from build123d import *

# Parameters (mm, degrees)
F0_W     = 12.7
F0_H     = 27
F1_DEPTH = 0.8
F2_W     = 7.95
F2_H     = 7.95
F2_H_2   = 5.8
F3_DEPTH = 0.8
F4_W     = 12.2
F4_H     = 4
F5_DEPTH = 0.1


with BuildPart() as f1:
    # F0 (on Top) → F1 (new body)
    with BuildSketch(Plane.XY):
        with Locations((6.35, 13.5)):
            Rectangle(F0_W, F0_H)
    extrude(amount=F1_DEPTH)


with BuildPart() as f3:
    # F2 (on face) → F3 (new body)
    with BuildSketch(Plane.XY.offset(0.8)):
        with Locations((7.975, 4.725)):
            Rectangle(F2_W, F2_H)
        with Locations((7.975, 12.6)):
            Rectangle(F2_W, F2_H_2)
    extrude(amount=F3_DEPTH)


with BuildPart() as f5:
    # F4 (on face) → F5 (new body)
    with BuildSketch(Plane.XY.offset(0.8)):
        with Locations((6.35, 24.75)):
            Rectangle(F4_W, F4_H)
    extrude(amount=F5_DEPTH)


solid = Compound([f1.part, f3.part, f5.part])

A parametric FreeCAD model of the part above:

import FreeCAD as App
import Part
import Sketcher
from FreeCAD import Vector
Q = App.Units.Quantity

doc = App.newDocument("Part")
body = doc.addObject("PartDesign::Body", "Body")

# Sketch on XY plane
sketch1 = doc.addObject("Sketcher::SketchObject", "Sketch")
body.addObject(sketch1)
sketch1.AttachmentSupport = (doc.XY_Plane, [""])
sketch1.MapMode = "FlatFace"
sketch1.addGeometry(Part.LineSegment(Vector(0, 27, 0), Vector(0, 0, 0)), False)
sketch1.addGeometry(Part.LineSegment(Vector(0, 0, 0), Vector(13, 0, 0)), False)
sketch1.addGeometry(Part.LineSegment(Vector(13, 0, 0), Vector(13, 27, 0)), False)
sketch1.addGeometry(Part.LineSegment(Vector(13, 27, 0), Vector(0, 27, 0)), False)
sketch1.addConstraint(Sketcher.Constraint("Coincident", 0, 2, 1, 1))
sketch1.addConstraint(Sketcher.Constraint("Coincident", 1, 2, 2, 1))
sketch1.addConstraint(Sketcher.Constraint("Coincident", 2, 2, 3, 1))
sketch1.addConstraint(Sketcher.Constraint("Coincident", 3, 2, 0, 1))
sketch1.addConstraint(Sketcher.Constraint("Vertical", 0))
sketch1.addConstraint(Sketcher.Constraint("Horizontal", 1))
sketch1.addConstraint(Sketcher.Constraint("Vertical", 2))
sketch1.addConstraint(Sketcher.Constraint("Horizontal", 3))
sketch1.addConstraint(Sketcher.Constraint("Coincident", 0, 2, -1, 1))
sketch1.addConstraint(Sketcher.Constraint("DistanceY", 0, 2, 0, 1, Q("27 mm")))
sketch1.addConstraint(Sketcher.Constraint("DistanceX", 1, 1, 1, 2, Q("12.7 mm")))
pad1 = doc.addObject("PartDesign::Pad", "Pad")
body.addObject(pad1)
pad1.Profile = sketch1
pad1.Length = 0.8
body2 = doc.addObject("PartDesign::Body", "Body001")
body2.AllowCompound = True

# Sketch on XY plane
sketch2 = doc.addObject("Sketcher::SketchObject", "Sketch001")
body2.addObject(sketch2)
sketch2.AttachmentSupport = (doc.getObject("XY_Plane001"), [""])
sketch2.MapMode = "FlatFace"
sketch2.AttachmentOffset = App.Placement(Vector(0, 0, 0.8), App.Rotation())
sketch2.addGeometry(Part.LineSegment(Vector(4, 9, 0), Vector(4, 1, 0)), False)
sketch2.addGeometry(Part.LineSegment(Vector(4, 1, 0), Vector(12, 1, 0)), False)
sketch2.addGeometry(Part.LineSegment(Vector(12, 1, 0), Vector(12, 9, 0)), False)
sketch2.addGeometry(Part.LineSegment(Vector(12, 9, 0), Vector(4, 9, 0)), False)
sketch2.addGeometry(Part.LineSegment(Vector(4, 16, 0), Vector(4, 10, 0)), False)
sketch2.addGeometry(Part.LineSegment(Vector(4, 10, 0), Vector(12, 10, 0)), False)
sketch2.addGeometry(Part.LineSegment(Vector(12, 10, 0), Vector(12, 16, 0)), False)
sketch2.addGeometry(Part.LineSegment(Vector(12, 16, 0), Vector(4, 16, 0)), False)
sketch2.addConstraint(Sketcher.Constraint("Coincident", 0, 2, 1, 1))
sketch2.addConstraint(Sketcher.Constraint("Coincident", 1, 2, 2, 1))
sketch2.addConstraint(Sketcher.Constraint("Coincident", 2, 2, 3, 1))
sketch2.addConstraint(Sketcher.Constraint("Coincident", 3, 2, 0, 1))
sketch2.addConstraint(Sketcher.Constraint("Coincident", 4, 2, 5, 1))
sketch2.addConstraint(Sketcher.Constraint("Coincident", 5, 2, 6, 1))
sketch2.addConstraint(Sketcher.Constraint("Coincident", 6, 2, 7, 1))
sketch2.addConstraint(Sketcher.Constraint("Coincident", 7, 2, 4, 1))
sketch2.addConstraint(Sketcher.Constraint("Vertical", 0))
sketch2.addConstraint(Sketcher.Constraint("Horizontal", 1))
sketch2.addConstraint(Sketcher.Constraint("Vertical", 2))
sketch2.addConstraint(Sketcher.Constraint("Horizontal", 3))
sketch2.addConstraint(Sketcher.Constraint("Vertical", 4))
sketch2.addConstraint(Sketcher.Constraint("Horizontal", 5))
sketch2.addConstraint(Sketcher.Constraint("Vertical", 6))
sketch2.addConstraint(Sketcher.Constraint("Horizontal", 7))
sketch2.addConstraint(Sketcher.Constraint("Vertical", 3, 2, 4, 2))
sketch2.addConstraint(Sketcher.Constraint("Vertical", 2, 2, 5, 2))
sketch2.addConstraint(Sketcher.Constraint("Equal", 7, 0))
sketch2.addConstraint(Sketcher.Constraint("DistanceY", 4, 2, 4, 1, Q("5.8 mm")))
sketch2.addConstraint(Sketcher.Constraint("DistanceX", -1, 1, 0, 2, Q("4 mm")))
sketch2.addConstraint(Sketcher.Constraint("DistanceY", 3, 2, 4, 2, Q("1 mm")))
sketch2.addConstraint(Sketcher.Constraint("DistanceX", 1, 1, 1, 2, Q("7.95 mm")))
sketch2.addConstraint(Sketcher.Constraint("DistanceY", -1, 1, 2, 2, Q("8.7 mm")))
pad2 = doc.addObject("PartDesign::Pad", "Pad001")
body2.addObject(pad2)
pad2.Profile = sketch2
pad2.Length = 0.8
body3 = doc.addObject("PartDesign::Body", "Body002")

# Sketch on XY plane
sketch3 = doc.addObject("Sketcher::SketchObject", "Sketch002")
body3.addObject(sketch3)
sketch3.AttachmentSupport = (doc.getObject("XY_Plane002"), [""])
sketch3.MapMode = "FlatFace"
sketch3.AttachmentOffset = App.Placement(Vector(0, 0, 0.8), App.Rotation())
sketch3.addGeometry(Part.LineSegment(Vector(0.2, 26.8, 0), Vector(0.2, 22.8, 0)), False)
sketch3.addGeometry(Part.LineSegment(Vector(0.2, 22.8, 0), Vector(12.4, 22.8, 0)), False)
sketch3.addGeometry(Part.LineSegment(Vector(12.4, 22.8, 0), Vector(12.4, 26.8, 0)), False)
sketch3.addGeometry(Part.LineSegment(Vector(12.4, 26.8, 0), Vector(0.2, 26.8, 0)), False)
sketch3.addConstraint(Sketcher.Constraint("Coincident", 0, 2, 1, 1))
sketch3.addConstraint(Sketcher.Constraint("Coincident", 1, 2, 2, 1))
sketch3.addConstraint(Sketcher.Constraint("Coincident", 2, 2, 3, 1))
sketch3.addConstraint(Sketcher.Constraint("Coincident", 3, 2, 0, 1))
sketch3.addConstraint(Sketcher.Constraint("Vertical", 0))
sketch3.addConstraint(Sketcher.Constraint("Horizontal", 1))
sketch3.addConstraint(Sketcher.Constraint("Vertical", 2))
sketch3.addConstraint(Sketcher.Constraint("Horizontal", 3))
sketch3.addConstraint(Sketcher.Constraint("DistanceY", 0, 2, 0, 1, Q("4 mm")))
sketch3.addConstraint(Sketcher.Constraint("DistanceX", 1, 1, 1, 2, Q("12.2 mm")))
sketch3.addConstraint(Sketcher.Constraint("DistanceX", -1, 1, 0, 2, Q("0.25 mm")))
sketch3.addConstraint(Sketcher.Constraint("DistanceY", -1, 1, 0, 2, Q("22.75 mm")))
pad3 = doc.addObject("PartDesign::Pad", "Pad002")
body3.addObject(pad3)
pad3.Profile = sketch3
pad3.Length = 0.1

doc.recompute()
